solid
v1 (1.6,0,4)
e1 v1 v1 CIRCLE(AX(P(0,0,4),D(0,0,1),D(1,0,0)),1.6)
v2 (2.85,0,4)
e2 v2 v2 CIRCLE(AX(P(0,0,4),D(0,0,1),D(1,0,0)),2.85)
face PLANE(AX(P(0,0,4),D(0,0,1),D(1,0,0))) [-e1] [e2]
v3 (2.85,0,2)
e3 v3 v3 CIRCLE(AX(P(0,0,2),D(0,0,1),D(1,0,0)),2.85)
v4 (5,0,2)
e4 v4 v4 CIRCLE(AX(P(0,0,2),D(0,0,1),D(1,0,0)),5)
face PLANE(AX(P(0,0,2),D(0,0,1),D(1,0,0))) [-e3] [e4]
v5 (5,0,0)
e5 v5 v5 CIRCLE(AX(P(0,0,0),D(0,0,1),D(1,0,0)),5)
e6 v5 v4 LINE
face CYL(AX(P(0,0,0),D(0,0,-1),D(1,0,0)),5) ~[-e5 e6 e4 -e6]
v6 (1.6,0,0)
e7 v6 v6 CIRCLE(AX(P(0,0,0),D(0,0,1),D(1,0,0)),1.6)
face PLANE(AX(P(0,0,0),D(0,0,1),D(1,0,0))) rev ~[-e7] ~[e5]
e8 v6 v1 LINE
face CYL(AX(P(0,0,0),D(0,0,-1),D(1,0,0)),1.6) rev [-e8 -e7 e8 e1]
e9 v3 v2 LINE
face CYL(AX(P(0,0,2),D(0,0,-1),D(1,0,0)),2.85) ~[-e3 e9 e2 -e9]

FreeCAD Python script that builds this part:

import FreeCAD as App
import Part
import Sketcher

doc = App.newDocument("Part")
body = doc.addObject("PartDesign::Body", "Body")

# Sketch on XY plane
sketch1 = body.newObject("Sketcher::SketchObject", "Sketch")
sketch1.AttachmentSupport = (doc.getObject("XY_Plane"), [""])
sketch1.MapMode = "FlatFace"
sketch1.addGeometry(Part.Circle(App.Vector(0, 0, 0), App.Vector(0, 0, 1), 5), False)
sketch1.addGeometry(Part.Circle(App.Vector(0, 0, 0), App.Vector(0, 0, 1), 1.6), False)
sketch1.addConstraint(Sketcher.Constraint("Coincident", 0, 3, -1, 1))
sketch1.addConstraint(Sketcher.Constraint("Coincident", 1, 3, -1, 1))
sketch1.addConstraint(Sketcher.Constraint("Diameter", 0, 10.0))
sketch1.addConstraint(Sketcher.Constraint("Diameter", 1, 3.2))
pad1 = body.newObject("PartDesign::Pad", "Pad")
pad1.Profile = sketch1
pad1.Length = 2

# Sketch on XY plane
sketch2 = body.newObject("Sketcher::SketchObject", "Sketch001")
sketch2.AttachmentSupport = (doc.getObject("XY_Plane"), [""])
sketch2.MapMode = "FlatFace"
sketch2.AttachmentOffset = App.Placement(App.Vector(0, 0, 2), App.Rotation())
sketch2.addGeometry(Part.Circle(App.Vector(0, 0, 0), App.Vector(0, 0, 1), 2.85), False)
sketch2.addGeometry(Part.Circle(App.Vector(0, 0, 0), App.Vector(0, 0, 1), 1.6), False)
sketch2.addConstraint(Sketcher.Constraint("Coincident", 0, 3, -1, 1))
sketch2.addConstraint(Sketcher.Constraint("Coincident", 1, 3, -1, 1))
sketch2.addConstraint(Sketcher.Constraint("Diameter", 0, 5.7))
sketch2.addConstraint(Sketcher.Constraint("Diameter", 1, 3.2))
pad2 = body.newObject("PartDesign::Pad", "Pad001")
pad2.Profile = sketch2
pad2.Length = 2

doc.recompute()
